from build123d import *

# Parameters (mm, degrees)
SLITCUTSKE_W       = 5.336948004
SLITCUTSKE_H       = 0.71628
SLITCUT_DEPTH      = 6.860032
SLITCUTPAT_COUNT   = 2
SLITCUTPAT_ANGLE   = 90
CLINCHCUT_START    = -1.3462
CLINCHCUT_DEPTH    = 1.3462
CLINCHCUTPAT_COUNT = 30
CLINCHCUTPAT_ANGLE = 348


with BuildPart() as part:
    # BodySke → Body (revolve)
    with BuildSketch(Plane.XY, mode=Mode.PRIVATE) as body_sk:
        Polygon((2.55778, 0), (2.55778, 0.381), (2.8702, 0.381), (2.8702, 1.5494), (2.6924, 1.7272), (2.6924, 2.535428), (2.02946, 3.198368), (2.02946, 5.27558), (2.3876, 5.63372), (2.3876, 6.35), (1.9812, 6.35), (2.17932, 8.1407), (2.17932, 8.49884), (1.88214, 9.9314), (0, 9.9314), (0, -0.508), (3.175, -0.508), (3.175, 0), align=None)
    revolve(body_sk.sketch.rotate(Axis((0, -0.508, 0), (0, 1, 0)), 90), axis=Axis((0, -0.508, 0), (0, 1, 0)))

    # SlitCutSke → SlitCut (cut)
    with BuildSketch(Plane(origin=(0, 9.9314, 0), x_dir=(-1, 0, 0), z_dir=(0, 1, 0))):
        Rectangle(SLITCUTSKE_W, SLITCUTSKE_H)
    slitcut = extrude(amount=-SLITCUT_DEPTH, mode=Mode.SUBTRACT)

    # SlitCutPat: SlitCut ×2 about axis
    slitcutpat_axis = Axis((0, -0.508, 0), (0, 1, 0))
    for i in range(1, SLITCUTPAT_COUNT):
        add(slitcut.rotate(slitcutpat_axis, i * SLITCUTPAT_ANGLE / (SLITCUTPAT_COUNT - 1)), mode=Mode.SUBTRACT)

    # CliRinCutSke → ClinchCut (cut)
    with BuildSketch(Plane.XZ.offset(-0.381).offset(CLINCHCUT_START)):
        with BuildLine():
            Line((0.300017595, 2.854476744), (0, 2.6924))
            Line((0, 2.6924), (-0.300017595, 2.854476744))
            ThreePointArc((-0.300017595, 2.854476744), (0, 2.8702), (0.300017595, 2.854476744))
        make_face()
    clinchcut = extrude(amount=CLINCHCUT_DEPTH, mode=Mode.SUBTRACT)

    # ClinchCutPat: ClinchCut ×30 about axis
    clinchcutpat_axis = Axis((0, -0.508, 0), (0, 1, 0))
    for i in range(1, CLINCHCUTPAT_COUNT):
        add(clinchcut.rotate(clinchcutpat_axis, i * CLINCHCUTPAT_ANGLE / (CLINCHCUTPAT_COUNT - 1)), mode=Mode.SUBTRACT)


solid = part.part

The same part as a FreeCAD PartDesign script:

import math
import FreeCAD as App
import Part
import Sketcher

V = App.Vector
Q = App.Units.Quantity

doc = App.newDocument("Part")
params = doc.addObject("Spreadsheet::Sheet", "Params")
for row, (alias, value) in enumerate([
    ("sketch1_height", "0.02 in"),
    ("sketch1_width", "0.016 in"),
    ("sketch1_width2", "0.125 in"),
    ("sketch1_height2", "0.015 in"),
    ("sketch1_height3", "0.046 in"),
    ("revolution_angle", "360 deg"),
    ("pocket1_length", "6.860032 mm"),
    ("sketch3_radius", "0.113 in"),
    ("pocket2_length", "0.053 in"),
], start=1):
    params.set(f"A{row}", alias)
    params.set(f"B{row}", "=" + value)
    params.setAlias(f"B{row}", alias)

body = doc.addObject("PartDesign::Body", "Body")

# Sketch on XY plane
sketch1 = body.newObject("Sketcher::SketchObject", "Sketch")
sketch1.AttachmentSupport = (doc.getObject("XY_Plane"), [""])
sketch1.MapMode = "FlatFace"
sketch1.addGeometry([
    Part.LineSegment(V(2.55778, 0, 0), V(2.55778, 0.381, 0)),  # 0
    Part.LineSegment(V(2.55778, 0.381, 0), V(2.8702, 0.381, 0)),  # 1
    Part.LineSegment(V(2.8702, 0.381, 0), V(2.8702, 1.5494, 0)),  # 2
    Part.LineSegment(V(2.8702, 1.5494, 0), V(2.6924, 1.7272, 0)),  # 3
    Part.LineSegment(V(2.6924, 1.7272, 0), V(2.6924, 2.535428, 0)),  # 4
    Part.LineSegment(V(2.6924, 2.535428, 0), V(2.02946, 3.198368, 0)),  # 5
    Part.LineSegment(V(2.02946, 3.198368, 0), V(2.02946, 5.27558, 0)),  # 6
    Part.LineSegment(V(2.02946, 5.27558, 0), V(2.3876, 5.63372, 0)),  # 7
    Part.LineSegment(V(2.3876, 5.63372, 0), V(2.3876, 6.35, 0)),  # 8
    Part.LineSegment(V(2.3876, 6.35, 0), V(1.9812, 6.35, 0)),  # 9
    Part.LineSegment(V(1.9812, 6.35, 0), V(2.17932, 8.1407, 0)),  # 10
    Part.LineSegment(V(2.17932, 8.1407, 0), V(2.17932, 8.49884, 0)),  # 11
    Part.LineSegment(V(2.17932, 8.49884, 0), V(1.88214, 9.9314, 0)),  # 12
    Part.LineSegment(V(1.88214, 9.9314, 0), V(0, 9.9314, 0)),  # 13
    Part.LineSegment(V(0, 9.9314, 0), V(0, -0.508, 0)),  # 14
    Part.LineSegment(V(0, -0.508, 0), V(3.175, -0.508, 0)),  # 15
    Part.LineSegment(V(3.175, -0.508, 0), V(3.175, 0, 0)),  # 16
    Part.LineSegment(V(3.175, 0, 0), V(2.55778, 0, 0)),  # 17
], False)
sketch1.addConstraint([
    Sketcher.Constraint("Coincident", 0, 2, 1, 1),
    Sketcher.Constraint("Coincident", 1, 2, 2, 1),
    Sketcher.Constraint("Coincident", 2, 2, 3, 1),
    Sketcher.Constraint("Coincident", 3, 2, 4, 1),
    Sketcher.Constraint("Coincident", 4, 2, 5, 1),
    Sketcher.Constraint("Coincident", 5, 2, 6, 1),
    Sketcher.Constraint("Coincident", 6, 2, 7, 1),
    Sketcher.Constraint("Coincident", 7, 2, 8, 1),
    Sketcher.Constraint("Coincident", 8, 2, 9, 1),
    Sketcher.Constraint("Coincident", 9, 2, 10, 1),
    Sketcher.Constraint("Coincident", 10, 2, 11, 1),
    Sketcher.Constraint("Coincident", 11, 2, 12, 1),
    Sketcher.Constraint("Coincident", 12, 2, 13, 1),
    Sketcher.Constraint("Coincident", 13, 2, 14, 1),
    Sketcher.Constraint("Coincident", 14, 2, 15, 1),
    Sketcher.Constraint("Coincident", 15, 2, 16, 1),
    Sketcher.Constraint("Coincident", 16, 2, 17, 1),
    Sketcher.Constraint("Coincident", 17, 2, 0, 1),
    Sketcher.Constraint("Vertical", 0),
    Sketcher.Constraint("Horizontal", 1),
    Sketcher.Constraint("Vertical", 2),
    Sketcher.Constraint("Vertical", 4),
    Sketcher.Constraint("Vertical", 6),
    Sketcher.Constraint("Vertical", 8),
    Sketcher.Constraint("Horizontal", 9),
    Sketcher.Constraint("Vertical", 11),
    Sketcher.Constraint("Horizontal", 13),
    Sketcher.Constraint("Vertical", 14),
    Sketcher.Constraint("Horizontal", 15),
    Sketcher.Constraint("Vertical", 16),
    Sketcher.Constraint("Horizontal", 17),
    Sketcher.Constraint("PointOnObject", 13, 2, -2),
    Sketcher.Constraint("PointOnObject", 16, 2, -1),
    Sketcher.Constraint("Parallel", 3, 5),
    Sketcher.Constraint("Perpendicular", 5, 7),
    Sketcher.Constraint("Angle", 3, Q("135 deg")),
    Sketcher.Constraint("DistanceY", 16, 1, 16, 2, Q("0.02 in")),
    Sketcher.Constraint("DistanceX", 9, 2, 9, 1, Q("0.016 in")),
    Sketcher.Constraint("DistanceX", 15, 1, 15, 2, Q("0.125 in")),
    Sketcher.Constraint("DistanceY", 0, 1, 0, 2, Q("0.015 in")),
    Sketcher.Constraint("DistanceY", 2, 1, 2, 2, Q("0.046 in")),
    Sketcher.Constraint("DistanceY", 14, 2, 14, 1, Q("0.411 in")),
    Sketcher.Constraint("DistanceY", -1, 1, 8, 2, Q("0.25 in")),
    Sketcher.Constraint("DistanceX", 1, 1, 1, 2, Q("0.0123 in")),
    Sketcher.Constraint("DistanceX", 13, 2, 13, 1, Q("0.0741 in")),
    Sketcher.Constraint("DistanceX", 17, 2, 17, 1, Q("0.0243 in")),
    Sketcher.Constraint("DistanceY", 8, 1, 8, 2, Q("0.0282 in")),
    Sketcher.Constraint("DistanceY", 11, 1, 11, 2, Q("0.0141 in")),
    Sketcher.Constraint("DistanceX", -1, 1, 3, 2, Q("0.106 in")),
    Sketcher.Constraint("DistanceX", -1, 1, 7, 2, Q("0.094 in")),
    Sketcher.Constraint("DistanceX", -1, 1, 5, 2, Q("0.0799 in")),
    Sketcher.Constraint("DistanceX", -1, 1, 10, 2, Q("0.0858 in")),
    Sketcher.Constraint("DistanceY", -1, 1, 10, 2, Q("0.3205 in")),
    Sketcher.Constraint("DistanceY", 6, 1, 6, 2, Q("2.077212 mm")),
])
sketch1.setExpression("Constraints[36]", "Params.sketch1_height")
sketch1.setExpression("Constraints[37]", "Params.sketch1_width")
sketch1.setExpression("Constraints[38]", "Params.sketch1_width2")
sketch1.setExpression("Constraints[39]", "Params.sketch1_height2")
sketch1.setExpression("Constraints[40]", "Params.sketch1_height3")
revolution = body.newObject("PartDesign::Revolution", "Revolution")
revolution.Profile = sketch1
revolution.ReferenceAxis = (sketch1, ["V_Axis"])
revolution.setExpression("Angle", "Params.revolution_angle")

# Sketch on XZ plane
sketch2 = body.newObject("Sketcher::SketchObject", "Sketch001")
sketch2.AttachmentSupport = (doc.getObject("XZ_Plane"), [""])
sketch2.MapMode = "FlatFace"
sketch2.AttachmentOffset = App.Placement(V(0, 0, -0.391 * 25.4), App.Rotation())
sketch2.addGeometry([
    Part.LineSegment(V(2.668474, 0.35814, 0), V(2.668474, -0.35814, 0)),
    Part.LineSegment(V(2.668474, -0.35814, 0), V(-2.668474, -0.35814, 0)),
    Part.LineSegment(V(-2.668474, -0.35814, 0), V(-2.668474, 0.35814, 0)),
    Part.LineSegment(V(-2.668474, 0.35814, 0), V(2.668474, 0.35814, 0)),
], False)
sketch2.addConstraint([
    Sketcher.Constraint("Coincident", 0, 2, 1, 1),
    Sketcher.Constraint("Coincident", 1, 2, 2, 1),
    Sketcher.Constraint("Coincident", 2, 2, 3, 1),
    Sketcher.Constraint("Coincident", 3, 2, 0, 1),
    Sketcher.Constraint("Vertical", 0),
    Sketcher.Constraint("Horizontal", 1),
    Sketcher.Constraint("Vertical", 2),
    Sketcher.Constraint("Horizontal", 3),
    Sketcher.Constraint("Symmetric", 0, 2, 2, 2, -1, 1),
    Sketcher.Constraint("DistanceY", 0, 2, 0, 1, Q("0.0282 in")),
    Sketcher.Constraint("DistanceX", 1, 2, 1, 1, Q("5.336948 mm")),
])
pocket1 = body.newObject("PartDesign::Pocket", "Pocket")
pocket1.Profile = sketch2
pocket1.setExpression("Length", "Params.pocket1_length")
pocket1.Reversed = True
doc.recompute()

polarpattern = body.newObject("PartDesign::PolarPattern", "PolarPattern")
polarpattern.Originals = [pocket1]
polarpattern.Axis = (doc.getObject("Y_Axis"), [""])
polarpattern.Angle = 90
polarpattern.Occurrences = 2
body.Tip = polarpattern

# Sketch on XZ plane
sketch3 = body.newObject("Sketcher::SketchObject", "Sketch002")
sketch3.AttachmentSupport = (doc.getObject("XZ_Plane"), [""])
sketch3.MapMode = "FlatFace"
sketch3.AttachmentOffset = App.Placement(V(0, 0, -0.068 * 25.4), App.Rotation())
sketch3.addGeometry([
    Part.LineSegment(V(0, 2.6924, 0), V(0.300018, 2.854477, 0)),
    Part.ArcOfCircle(Part.Circle(V(0, 0, 0), V(0, 0, 1), 2.8702), math.radians(84), math.radians(96)),
    Part.LineSegment(V(-0.300018, 2.854477, 0), V(0, 2.6924, 0)),
], False)
sketch3.addConstraint([
    Sketcher.Constraint("Coincident", 0, 2, 1, 1),
    Sketcher.Constraint("Coincident", 1, 2, 2, 1),
    Sketcher.Constraint("Coincident", 2, 2, 0, 1),
    Sketcher.Constraint("Coincident", 1, 3, -1, 1),
    Sketcher.Constraint("PointOnObject", 2, 2, -2),
    Sketcher.Constraint("Horizontal", 0, 2, 1, 2),
    Sketcher.Constraint("Radius", 1, Q("0.113 in")),
    Sketcher.Constraint("DistanceY", -1, 1, 2, 2, Q("0.106 in")),
    Sketcher.Constraint("Distance", 0, Q("0.340998 mm")),
])
sketch3.setExpression("Constraints[6]", "Params.sketch3_radius")
pocket2 = body.newObject("PartDesign::Pocket", "Pocket001")
pocket2.Profile = sketch3
pocket2.setExpression("Length", "Params.pocket2_length")
pocket2.Reversed = True
doc.recompute()

polarpattern2 = body.newObject("PartDesign::PolarPattern", "PolarPattern001")
polarpattern2.Originals = [pocket2]
polarpattern2.Axis = (doc.getObject("Y_Axis"), [""])
polarpattern2.Angle = 360
polarpattern2.Occurrences = 30
body.Tip = polarpattern2

doc.recompute()
